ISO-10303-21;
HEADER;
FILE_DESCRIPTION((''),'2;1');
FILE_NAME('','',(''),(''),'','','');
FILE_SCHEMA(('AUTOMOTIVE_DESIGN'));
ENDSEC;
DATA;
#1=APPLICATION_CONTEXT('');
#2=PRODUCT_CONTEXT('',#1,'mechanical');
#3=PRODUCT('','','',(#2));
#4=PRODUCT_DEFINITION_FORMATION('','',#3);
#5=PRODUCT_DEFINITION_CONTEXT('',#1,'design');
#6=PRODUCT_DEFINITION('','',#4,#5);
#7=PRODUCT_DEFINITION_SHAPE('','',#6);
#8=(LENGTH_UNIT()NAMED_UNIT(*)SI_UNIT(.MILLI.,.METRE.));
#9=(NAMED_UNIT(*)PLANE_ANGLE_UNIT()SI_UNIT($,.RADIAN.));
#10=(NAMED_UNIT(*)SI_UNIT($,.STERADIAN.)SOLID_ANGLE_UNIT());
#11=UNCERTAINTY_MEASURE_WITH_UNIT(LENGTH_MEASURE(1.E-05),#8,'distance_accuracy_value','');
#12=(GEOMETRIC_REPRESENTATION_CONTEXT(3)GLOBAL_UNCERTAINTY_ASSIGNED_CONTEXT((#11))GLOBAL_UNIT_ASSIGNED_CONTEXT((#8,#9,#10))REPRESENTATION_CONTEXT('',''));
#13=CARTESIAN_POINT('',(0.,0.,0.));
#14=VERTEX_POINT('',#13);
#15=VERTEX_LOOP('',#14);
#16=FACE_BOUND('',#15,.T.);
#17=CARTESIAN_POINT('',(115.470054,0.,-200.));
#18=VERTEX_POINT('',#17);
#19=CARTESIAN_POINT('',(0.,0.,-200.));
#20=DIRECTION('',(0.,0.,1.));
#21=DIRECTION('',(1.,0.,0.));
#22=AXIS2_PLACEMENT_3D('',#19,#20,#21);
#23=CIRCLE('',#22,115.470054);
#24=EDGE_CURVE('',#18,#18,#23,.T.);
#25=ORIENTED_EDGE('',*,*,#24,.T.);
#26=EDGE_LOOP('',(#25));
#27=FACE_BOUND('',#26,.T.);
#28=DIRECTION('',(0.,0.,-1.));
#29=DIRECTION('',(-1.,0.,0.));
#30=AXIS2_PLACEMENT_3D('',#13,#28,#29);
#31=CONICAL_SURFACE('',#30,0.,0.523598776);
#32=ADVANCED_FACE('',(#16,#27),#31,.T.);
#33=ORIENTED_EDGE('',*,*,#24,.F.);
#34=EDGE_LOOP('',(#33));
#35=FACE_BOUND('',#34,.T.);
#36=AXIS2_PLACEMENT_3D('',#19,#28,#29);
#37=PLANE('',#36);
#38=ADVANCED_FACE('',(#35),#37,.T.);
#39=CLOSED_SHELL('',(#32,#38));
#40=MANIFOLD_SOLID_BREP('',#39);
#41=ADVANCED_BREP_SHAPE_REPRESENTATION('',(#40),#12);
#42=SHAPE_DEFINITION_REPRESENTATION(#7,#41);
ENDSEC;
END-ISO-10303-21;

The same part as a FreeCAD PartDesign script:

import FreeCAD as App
import Part
import Sketcher

V = App.Vector
Q = App.Units.Quantity

doc = App.newDocument("Part")
body = doc.addObject("PartDesign::Body", "Body")

# Sketch on XZ plane
sketch1 = doc.addObject("Sketcher::SketchObject", "Sketch")
body.addObject(sketch1)
sketch1.AttachmentSupport = (doc.XZ_Plane, [""])
sketch1.MapMode = "FlatFace"
sketch1.addGeometry(Part.LineSegment(V(0, -200, 0), V(0, 0, 0)), False)
sketch1.addGeometry(Part.LineSegment(V(0, 0, 0), V(115, -200, 0)), False)
sketch1.addGeometry(Part.LineSegment(V(115, -200, 0), V(0, -200, 0)), False)
sketch1.addConstraint(Sketcher.Constraint("Coincident", 0, 2, 1, 1))
sketch1.addConstraint(Sketcher.Constraint("Coincident", 1, 2, 2, 1))
sketch1.addConstraint(Sketcher.Constraint("Coincident", 2, 2, 0, 1))
sketch1.addConstraint(Sketcher.Constraint("Vertical", 0))
sketch1.addConstraint(Sketcher.Constraint("Horizontal", 2))
sketch1.addConstraint(Sketcher.Constraint("Coincident", 0, 2, -1, 1))
sketch1.addConstraint(Sketcher.Constraint("DistanceY", 0, 1, 0, 2, Q("200 mm")))
sketch1.addConstraint(Sketcher.Constraint("Angle", 1, Q("-60 deg")))
revolution = doc.addObject("PartDesign::Revolution", "Revolution")
body.addObject(revolution)
revolution.Profile = sketch1
revolution.ReferenceAxis = (sketch1, ["V_Axis"])
revolution.Angle = 360

doc.recompute()
